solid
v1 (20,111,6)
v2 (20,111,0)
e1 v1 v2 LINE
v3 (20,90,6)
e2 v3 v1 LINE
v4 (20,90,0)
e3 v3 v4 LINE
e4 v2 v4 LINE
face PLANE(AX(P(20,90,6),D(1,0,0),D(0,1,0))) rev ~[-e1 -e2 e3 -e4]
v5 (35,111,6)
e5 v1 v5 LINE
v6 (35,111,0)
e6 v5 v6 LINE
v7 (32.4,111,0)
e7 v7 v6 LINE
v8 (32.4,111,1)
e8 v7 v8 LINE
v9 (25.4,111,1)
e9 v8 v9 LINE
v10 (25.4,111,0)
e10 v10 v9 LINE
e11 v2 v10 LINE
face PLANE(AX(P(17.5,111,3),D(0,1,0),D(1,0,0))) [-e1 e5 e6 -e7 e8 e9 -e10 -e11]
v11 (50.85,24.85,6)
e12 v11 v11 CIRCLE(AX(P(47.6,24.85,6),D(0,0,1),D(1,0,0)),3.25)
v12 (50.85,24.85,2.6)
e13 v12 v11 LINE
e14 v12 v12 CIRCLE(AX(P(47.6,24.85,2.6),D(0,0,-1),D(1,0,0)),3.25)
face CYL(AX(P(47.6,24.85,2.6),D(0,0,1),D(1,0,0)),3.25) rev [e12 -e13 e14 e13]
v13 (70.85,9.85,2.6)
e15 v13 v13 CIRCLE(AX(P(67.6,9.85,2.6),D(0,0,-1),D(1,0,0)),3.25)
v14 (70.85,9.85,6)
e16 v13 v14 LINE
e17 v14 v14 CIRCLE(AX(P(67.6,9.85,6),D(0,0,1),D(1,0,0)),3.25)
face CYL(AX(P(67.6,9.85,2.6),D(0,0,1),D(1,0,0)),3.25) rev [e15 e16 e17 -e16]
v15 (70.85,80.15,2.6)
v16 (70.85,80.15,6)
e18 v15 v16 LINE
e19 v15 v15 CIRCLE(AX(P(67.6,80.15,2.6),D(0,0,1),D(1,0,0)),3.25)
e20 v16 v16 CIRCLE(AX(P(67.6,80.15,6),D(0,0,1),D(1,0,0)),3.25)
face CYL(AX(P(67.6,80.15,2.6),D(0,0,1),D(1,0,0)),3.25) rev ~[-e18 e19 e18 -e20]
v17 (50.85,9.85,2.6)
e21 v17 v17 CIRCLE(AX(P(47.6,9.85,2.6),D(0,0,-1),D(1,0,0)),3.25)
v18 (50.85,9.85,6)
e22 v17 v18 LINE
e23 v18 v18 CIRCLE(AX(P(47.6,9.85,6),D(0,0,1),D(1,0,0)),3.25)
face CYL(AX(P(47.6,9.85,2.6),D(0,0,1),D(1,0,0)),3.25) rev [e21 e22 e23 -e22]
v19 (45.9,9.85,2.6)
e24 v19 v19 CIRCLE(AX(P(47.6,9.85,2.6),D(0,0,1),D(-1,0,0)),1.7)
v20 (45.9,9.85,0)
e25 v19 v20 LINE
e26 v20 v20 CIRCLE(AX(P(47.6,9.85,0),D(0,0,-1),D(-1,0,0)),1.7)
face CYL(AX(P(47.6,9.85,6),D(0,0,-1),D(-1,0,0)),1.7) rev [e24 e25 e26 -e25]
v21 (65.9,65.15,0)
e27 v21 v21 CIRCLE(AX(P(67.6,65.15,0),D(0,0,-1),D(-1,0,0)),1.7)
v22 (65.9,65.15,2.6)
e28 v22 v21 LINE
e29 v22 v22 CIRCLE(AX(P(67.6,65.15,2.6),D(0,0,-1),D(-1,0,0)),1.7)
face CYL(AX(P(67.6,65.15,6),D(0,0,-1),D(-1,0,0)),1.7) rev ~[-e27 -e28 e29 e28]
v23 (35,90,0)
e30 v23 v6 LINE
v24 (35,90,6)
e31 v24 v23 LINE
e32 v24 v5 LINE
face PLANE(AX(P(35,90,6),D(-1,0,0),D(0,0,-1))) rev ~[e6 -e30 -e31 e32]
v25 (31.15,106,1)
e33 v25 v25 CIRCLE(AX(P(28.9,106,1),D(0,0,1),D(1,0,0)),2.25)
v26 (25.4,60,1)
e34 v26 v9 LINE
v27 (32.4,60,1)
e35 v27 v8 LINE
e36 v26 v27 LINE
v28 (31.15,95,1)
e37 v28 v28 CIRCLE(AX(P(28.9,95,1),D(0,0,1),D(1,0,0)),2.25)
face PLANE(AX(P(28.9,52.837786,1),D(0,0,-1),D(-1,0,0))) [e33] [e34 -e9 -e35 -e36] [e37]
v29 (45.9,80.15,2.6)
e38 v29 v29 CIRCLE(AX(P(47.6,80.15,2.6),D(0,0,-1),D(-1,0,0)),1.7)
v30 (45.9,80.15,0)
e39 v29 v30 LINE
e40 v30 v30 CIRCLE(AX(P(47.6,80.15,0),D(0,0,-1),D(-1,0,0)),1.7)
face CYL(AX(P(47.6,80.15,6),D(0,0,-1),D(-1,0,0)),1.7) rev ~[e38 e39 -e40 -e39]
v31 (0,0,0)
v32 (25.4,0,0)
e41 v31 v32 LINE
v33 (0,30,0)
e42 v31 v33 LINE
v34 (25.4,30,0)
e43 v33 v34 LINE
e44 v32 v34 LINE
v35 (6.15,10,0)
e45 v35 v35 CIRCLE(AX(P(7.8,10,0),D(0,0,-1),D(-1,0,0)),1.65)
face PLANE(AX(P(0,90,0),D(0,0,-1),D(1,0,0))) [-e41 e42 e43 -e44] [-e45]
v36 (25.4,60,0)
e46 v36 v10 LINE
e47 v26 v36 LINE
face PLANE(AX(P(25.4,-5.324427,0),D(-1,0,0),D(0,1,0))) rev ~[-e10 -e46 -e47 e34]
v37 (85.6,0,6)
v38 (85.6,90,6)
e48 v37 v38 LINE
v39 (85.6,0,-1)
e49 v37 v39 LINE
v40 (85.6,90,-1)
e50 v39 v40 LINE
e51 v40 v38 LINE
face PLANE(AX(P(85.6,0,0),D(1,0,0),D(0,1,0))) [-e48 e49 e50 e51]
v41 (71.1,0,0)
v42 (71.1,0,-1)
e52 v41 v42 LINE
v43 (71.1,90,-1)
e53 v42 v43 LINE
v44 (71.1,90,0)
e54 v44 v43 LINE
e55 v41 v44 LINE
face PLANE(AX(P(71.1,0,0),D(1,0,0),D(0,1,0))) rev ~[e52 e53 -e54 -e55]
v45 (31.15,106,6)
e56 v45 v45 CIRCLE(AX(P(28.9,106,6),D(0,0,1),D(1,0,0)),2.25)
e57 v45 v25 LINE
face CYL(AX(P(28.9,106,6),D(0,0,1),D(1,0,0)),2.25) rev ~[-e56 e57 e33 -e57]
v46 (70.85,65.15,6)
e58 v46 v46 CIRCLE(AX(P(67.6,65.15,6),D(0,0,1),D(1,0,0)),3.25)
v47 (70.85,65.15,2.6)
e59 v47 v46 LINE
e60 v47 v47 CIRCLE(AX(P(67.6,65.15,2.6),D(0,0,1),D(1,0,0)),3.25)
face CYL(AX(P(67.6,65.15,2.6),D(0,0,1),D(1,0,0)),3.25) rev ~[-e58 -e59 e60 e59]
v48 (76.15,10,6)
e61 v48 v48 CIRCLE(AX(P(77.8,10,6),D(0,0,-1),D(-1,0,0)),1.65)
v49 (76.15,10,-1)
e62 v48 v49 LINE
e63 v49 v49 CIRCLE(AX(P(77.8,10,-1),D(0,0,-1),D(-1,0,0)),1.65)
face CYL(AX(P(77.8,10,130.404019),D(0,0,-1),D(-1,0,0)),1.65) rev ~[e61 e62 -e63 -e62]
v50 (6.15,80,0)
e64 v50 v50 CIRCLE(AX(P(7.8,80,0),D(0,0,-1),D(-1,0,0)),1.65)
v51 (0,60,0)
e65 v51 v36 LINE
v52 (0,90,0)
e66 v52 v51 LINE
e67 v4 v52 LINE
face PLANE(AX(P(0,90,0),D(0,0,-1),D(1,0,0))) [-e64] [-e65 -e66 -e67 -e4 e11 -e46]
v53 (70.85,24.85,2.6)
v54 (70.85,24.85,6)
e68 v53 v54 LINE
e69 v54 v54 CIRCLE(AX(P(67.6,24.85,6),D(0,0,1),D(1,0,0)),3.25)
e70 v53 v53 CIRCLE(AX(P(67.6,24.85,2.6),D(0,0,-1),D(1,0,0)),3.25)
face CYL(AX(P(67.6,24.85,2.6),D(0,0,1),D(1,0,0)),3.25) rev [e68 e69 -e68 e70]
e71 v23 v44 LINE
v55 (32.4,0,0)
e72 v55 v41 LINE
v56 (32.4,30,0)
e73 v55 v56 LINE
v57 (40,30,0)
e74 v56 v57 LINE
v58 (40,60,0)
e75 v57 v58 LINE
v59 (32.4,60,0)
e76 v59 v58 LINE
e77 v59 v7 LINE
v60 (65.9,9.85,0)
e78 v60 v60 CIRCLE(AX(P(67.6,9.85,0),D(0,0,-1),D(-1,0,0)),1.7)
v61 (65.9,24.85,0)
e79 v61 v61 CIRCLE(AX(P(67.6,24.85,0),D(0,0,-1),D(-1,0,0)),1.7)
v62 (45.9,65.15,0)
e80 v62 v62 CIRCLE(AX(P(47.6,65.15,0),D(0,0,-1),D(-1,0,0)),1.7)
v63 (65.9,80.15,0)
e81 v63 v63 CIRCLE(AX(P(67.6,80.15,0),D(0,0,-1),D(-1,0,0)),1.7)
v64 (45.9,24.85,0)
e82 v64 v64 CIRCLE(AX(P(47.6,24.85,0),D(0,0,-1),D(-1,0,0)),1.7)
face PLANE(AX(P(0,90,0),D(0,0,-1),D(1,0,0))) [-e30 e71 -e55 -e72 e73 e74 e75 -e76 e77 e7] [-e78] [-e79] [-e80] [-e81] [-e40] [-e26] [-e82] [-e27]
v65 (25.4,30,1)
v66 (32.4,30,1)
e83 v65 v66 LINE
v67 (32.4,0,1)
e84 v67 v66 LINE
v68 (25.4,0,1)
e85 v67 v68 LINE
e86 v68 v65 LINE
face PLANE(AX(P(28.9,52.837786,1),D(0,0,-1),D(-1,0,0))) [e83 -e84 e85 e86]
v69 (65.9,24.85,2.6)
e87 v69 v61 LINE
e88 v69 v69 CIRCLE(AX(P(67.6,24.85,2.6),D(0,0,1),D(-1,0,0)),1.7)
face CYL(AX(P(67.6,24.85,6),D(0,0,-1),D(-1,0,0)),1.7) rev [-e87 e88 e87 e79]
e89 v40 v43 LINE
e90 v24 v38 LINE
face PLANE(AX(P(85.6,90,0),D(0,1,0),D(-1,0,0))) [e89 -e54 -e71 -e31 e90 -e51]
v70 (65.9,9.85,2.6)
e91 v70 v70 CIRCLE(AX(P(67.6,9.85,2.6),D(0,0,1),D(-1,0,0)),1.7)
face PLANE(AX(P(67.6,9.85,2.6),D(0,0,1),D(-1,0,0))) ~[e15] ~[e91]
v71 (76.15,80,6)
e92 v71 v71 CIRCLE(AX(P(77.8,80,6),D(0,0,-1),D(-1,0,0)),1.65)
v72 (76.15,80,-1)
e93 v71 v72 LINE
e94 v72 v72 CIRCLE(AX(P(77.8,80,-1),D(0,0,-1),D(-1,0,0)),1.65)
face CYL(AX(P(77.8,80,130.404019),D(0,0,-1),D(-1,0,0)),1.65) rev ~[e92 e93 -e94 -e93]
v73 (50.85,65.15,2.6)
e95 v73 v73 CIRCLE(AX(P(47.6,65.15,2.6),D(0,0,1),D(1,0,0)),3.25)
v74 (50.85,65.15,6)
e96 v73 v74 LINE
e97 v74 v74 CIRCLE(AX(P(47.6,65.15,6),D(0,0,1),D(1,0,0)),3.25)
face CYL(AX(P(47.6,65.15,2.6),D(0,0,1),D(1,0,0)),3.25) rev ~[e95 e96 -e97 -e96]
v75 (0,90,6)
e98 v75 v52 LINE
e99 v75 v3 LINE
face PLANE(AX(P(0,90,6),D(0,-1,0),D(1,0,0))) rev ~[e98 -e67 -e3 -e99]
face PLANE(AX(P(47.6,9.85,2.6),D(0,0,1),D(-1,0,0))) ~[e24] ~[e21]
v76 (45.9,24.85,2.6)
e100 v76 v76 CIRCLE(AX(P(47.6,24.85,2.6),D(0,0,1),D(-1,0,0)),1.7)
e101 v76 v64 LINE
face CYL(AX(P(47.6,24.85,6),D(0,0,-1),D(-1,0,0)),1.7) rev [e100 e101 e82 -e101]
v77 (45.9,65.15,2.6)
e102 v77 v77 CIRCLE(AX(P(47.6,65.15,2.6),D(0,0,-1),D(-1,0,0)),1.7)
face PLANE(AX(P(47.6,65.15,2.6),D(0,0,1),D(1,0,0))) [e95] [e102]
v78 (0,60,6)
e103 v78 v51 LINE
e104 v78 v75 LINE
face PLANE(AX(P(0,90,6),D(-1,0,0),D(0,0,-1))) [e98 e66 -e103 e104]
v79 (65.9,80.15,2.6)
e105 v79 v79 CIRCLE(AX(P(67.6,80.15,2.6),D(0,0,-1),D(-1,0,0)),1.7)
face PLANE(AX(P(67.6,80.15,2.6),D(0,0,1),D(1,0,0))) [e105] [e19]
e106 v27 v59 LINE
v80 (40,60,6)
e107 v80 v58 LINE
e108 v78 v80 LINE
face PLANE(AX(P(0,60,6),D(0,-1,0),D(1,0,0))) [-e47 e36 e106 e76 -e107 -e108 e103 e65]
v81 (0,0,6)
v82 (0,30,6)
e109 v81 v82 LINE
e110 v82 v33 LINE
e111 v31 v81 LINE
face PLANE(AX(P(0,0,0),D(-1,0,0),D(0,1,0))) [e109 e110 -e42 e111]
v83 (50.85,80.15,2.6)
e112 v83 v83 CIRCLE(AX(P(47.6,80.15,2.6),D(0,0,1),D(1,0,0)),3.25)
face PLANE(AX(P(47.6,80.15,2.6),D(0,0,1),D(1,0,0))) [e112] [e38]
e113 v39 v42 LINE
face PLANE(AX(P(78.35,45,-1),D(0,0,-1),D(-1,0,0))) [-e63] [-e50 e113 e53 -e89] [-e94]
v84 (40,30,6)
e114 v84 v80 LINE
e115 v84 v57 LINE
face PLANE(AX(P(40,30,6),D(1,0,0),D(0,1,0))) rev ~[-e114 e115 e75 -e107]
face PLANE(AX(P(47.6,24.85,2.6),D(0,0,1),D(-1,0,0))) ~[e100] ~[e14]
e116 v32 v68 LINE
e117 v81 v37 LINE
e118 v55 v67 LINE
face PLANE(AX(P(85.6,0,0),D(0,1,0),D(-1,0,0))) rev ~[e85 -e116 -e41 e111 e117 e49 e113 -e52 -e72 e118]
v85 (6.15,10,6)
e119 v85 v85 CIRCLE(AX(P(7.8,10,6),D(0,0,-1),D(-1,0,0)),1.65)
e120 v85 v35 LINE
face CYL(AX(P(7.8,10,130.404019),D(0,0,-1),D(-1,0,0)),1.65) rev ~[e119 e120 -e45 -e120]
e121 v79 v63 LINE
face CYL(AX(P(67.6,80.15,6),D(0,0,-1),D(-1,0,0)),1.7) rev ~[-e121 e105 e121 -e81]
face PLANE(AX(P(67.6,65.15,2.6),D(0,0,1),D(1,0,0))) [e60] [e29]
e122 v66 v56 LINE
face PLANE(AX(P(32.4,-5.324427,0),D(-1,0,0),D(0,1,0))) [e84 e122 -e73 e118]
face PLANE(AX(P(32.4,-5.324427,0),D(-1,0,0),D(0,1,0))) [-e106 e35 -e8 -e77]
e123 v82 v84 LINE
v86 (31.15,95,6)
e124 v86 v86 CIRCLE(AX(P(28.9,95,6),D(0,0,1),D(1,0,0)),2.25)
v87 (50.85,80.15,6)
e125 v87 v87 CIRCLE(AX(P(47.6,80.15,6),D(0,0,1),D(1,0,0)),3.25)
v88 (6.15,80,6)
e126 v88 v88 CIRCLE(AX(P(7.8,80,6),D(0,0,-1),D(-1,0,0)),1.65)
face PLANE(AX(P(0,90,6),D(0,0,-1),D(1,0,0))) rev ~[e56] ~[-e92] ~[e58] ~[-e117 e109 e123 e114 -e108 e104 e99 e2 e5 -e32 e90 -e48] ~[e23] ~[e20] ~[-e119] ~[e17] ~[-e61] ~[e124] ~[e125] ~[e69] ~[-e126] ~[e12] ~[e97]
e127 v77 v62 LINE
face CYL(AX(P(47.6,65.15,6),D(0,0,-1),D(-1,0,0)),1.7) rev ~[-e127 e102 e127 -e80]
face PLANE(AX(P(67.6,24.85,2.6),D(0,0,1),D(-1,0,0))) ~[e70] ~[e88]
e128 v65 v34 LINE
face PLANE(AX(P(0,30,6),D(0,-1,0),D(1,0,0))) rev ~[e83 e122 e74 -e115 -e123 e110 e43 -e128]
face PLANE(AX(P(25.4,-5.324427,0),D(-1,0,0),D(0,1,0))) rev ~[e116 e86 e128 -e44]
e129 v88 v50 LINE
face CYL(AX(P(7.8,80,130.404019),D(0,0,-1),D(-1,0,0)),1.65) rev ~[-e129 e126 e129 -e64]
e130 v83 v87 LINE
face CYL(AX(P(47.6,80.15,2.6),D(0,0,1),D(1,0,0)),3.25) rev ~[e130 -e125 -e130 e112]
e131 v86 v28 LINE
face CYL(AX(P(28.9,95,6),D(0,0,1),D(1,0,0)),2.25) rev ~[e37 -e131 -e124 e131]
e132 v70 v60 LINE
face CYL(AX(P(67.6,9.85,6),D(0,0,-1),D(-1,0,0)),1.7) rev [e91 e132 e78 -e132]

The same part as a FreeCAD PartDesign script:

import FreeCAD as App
import Part
import Sketcher

V = App.Vector

doc = App.newDocument("Part")
body = doc.addObject("PartDesign::Body", "Body")

sketch1 = body.newObject("Sketcher::SketchObject", "Sketch")
sketch1.AttachmentSupport = (doc.getObject("XY_Plane"), [""])
sketch1.MapMode = "FlatFace"
sketch1.addGeometry([
    Part.LineSegment(V(0, 90, 0), V(0, 0, 0)),
    Part.LineSegment(V(0, 0, 0), V(86, 0, 0)),
    Part.LineSegment(V(86, 0, 0), V(86, 90, 0)),
    Part.LineSegment(V(86, 90, 0), V(0, 90, 0)),
], False)
sketch1.addConstraint([
    Sketcher.Constraint("Coincident", 0, 2, 1, 1),
    Sketcher.Constraint("Coincident", 1, 2, 2, 1),
    Sketcher.Constraint("Coincident", 2, 2, 3, 1),
    Sketcher.Constraint("Coincident", 3, 2, 0, 1),
    Sketcher.Constraint("Vertical", 0),
    Sketcher.Constraint("Horizontal", 1),
    Sketcher.Constraint("Vertical", 2),
    Sketcher.Constraint("Horizontal", 3),
    Sketcher.Constraint("Coincident", 0, 2, -1, 1),
    Sketcher.Constraint("DistanceY", 0, 2, 0, 1, 90.0),
    Sketcher.Constraint("DistanceX", 1, 1, 1, 2, 85.6),
])
pad1 = body.newObject("PartDesign::Pad", "Pad")
pad1.Profile = sketch1
pad1.Length = 6

sketch2 = body.newObject("Sketcher::SketchObject", "Sketch001")
sketch2.AttachmentSupport = (doc.getObject("XY_Plane"), [""])
sketch2.MapMode = "FlatFace"
sketch2.AttachmentOffset = App.Placement(V(0, 0, 6), App.Rotation())
sketch2.addGeometry([
    Part.LineSegment(V(0, 60, 0), V(0, 30, 0)),
    Part.LineSegment(V(0, 30, 0), V(40, 30, 0)),
    Part.LineSegment(V(40, 30, 0), V(40, 60, 0)),
    Part.LineSegment(V(40, 60, 0), V(0, 60, 0)),
], False)
sketch2.addConstraint([
    Sketcher.Constraint("Coincident", 0, 2, 1, 1),
    Sketcher.Constraint("Coincident", 1, 2, 2, 1),
    Sketcher.Constraint("Coincident", 2, 2, 3, 1),
    Sketcher.Constraint("Coincident", 3, 2, 0, 1),
    Sketcher.Constraint("Vertical", 0),
    Sketcher.Constraint("Horizontal", 1),
    Sketcher.Constraint("Vertical", 2),
    Sketcher.Constraint("Horizontal", 3),
    Sketcher.Constraint("PointOnObject", 0, 2, -2),
    Sketcher.Constraint("DistanceX", 1, 1, 1, 2, 40.0),
    Sketcher.Constraint("DistanceY", 0, 2, 0, 1, 30.0),
    Sketcher.Constraint("DistanceY", -1, 1, 0, 2, 30.0),
])
pocket1 = body.newObject("PartDesign::Pocket", "Pocket")
pocket1.Profile = sketch2
pocket1.Type = "ThroughAll"

sketch3 = body.newObject("Sketcher::SketchObject", "Sketch002")
sketch3.AttachmentSupport = (doc.getObject("XY_Plane"), [""])
sketch3.MapMode = "FlatFace"
sketch3.addGeometry([
    Part.LineSegment(V(86, 90, 0), V(86, 0, 0)),
    Part.LineSegment(V(86, 0, 0), V(71, 0, 0)),
    Part.LineSegment(V(71, 0, 0), V(71, 90, 0)),
    Part.LineSegment(V(71, 90, 0), V(86, 90, 0)),
], False)
sketch3.addConstraint([
    Sketcher.Constraint("Coincident", 0, 2, 1, 1),
    Sketcher.Constraint("Coincident", 1, 2, 2, 1),
    Sketcher.Constraint("Coincident", 2, 2, 3, 1),
    Sketcher.Constraint("Coincident", 3, 2, 0, 1),
    Sketcher.Constraint("Vertical", 0),
    Sketcher.Constraint("Horizontal", 1),
    Sketcher.Constraint("Vertical", 2),
    Sketcher.Constraint("Horizontal", 3),
    Sketcher.Constraint("PointOnObject", 0, 2, -1),
    Sketcher.Constraint("DistanceY", 0, 2, 0, 1, 90.0),
    Sketcher.Constraint("DistanceX", 1, 2, 1, 1, 14.5),
    Sketcher.Constraint("DistanceX", -1, 1, 0, 2, 85.6),
])
pad2 = body.newObject("PartDesign::Pad", "Pad001")
pad2.Profile = sketch3
pad2.Length = 1
pad2.Reversed = True

sketch4 = body.newObject("Sketcher::SketchObject", "Sketch003")
sketch4.AttachmentSupport = (doc.getObject("XY_Plane"), [""])
sketch4.MapMode = "FlatFace"
sketch4.AttachmentOffset = App.Placement(V(0, 0, 6), App.Rotation())
sketch4.addGeometry([
    Part.Circle(V(67.6, 65.2, 0), V(0, 0, 1), 1.7),
    Part.Circle(V(47.6, 65.2, 0), V(0, 0, 1), 1.7),
    Part.Circle(V(67.6, 80.2, 0), V(0, 0, 1), 1.7),
    Part.Circle(V(47.6, 80.2, 0), V(0, 0, 1), 1.7),
], False)
sketch4.addConstraint([
    Sketcher.Constraint("Equal", 0, 1),
    Sketcher.Constraint("Equal", 1, 2),
    Sketcher.Constraint("Equal", 2, 3),
    Sketcher.Constraint("Horizontal", 0, 3, 1, 3),
    Sketcher.Constraint("Horizontal", 2, 3, 3, 3),
    Sketcher.Constraint("Vertical", 0, 3, 2, 3),
    Sketcher.Constraint("Vertical", 1, 3, 3, 3),
    Sketcher.Constraint("Diameter", 0, 3.4),
    Sketcher.Constraint("DistanceX", 1, 3, 0, 3, 20.0),
    Sketcher.Constraint("DistanceY", 0, 3, 2, 3, 15.0),
    Sketcher.Constraint("DistanceX", -1, 1, 0, 3, 67.6),
    Sketcher.Constraint("DistanceY", -1, 1, 0, 3, 65.15),
])
doc.recompute()
hole = body.newObject("PartDesign::Hole", "Hole")
hole.Profile = sketch4
hole.ThreadType = "None"
hole.Diameter = 3.4
hole.DepthType = "ThroughAll"
hole.HoleCutType = "Counterbore"
hole.HoleCutDiameter = 6.5
hole.HoleCutDepth = 3.4
doc.recompute()

datumplane = body.newObject("PartDesign::Plane", "DatumPlane")
datumplane.AttachmentSupport = (doc.getObject("XZ_Plane"), [""])
datumplane.MapMode = "FlatFace"
datumplane.AttachmentOffset = App.Placement(V(0, 0, -45), App.Rotation())
mirrored = body.newObject("PartDesign::Mirrored", "Mirrored")
mirrored.Originals = [hole]
mirrored.MirrorPlane = (datumplane, [""])
body.Tip = mirrored

sketch5 = body.newObject("Sketcher::SketchObject", "Sketch004")
sketch5.AttachmentSupport = (doc.getObject("XY_Plane"), [""])
sketch5.MapMode = "FlatFace"
sketch5.AttachmentOffset = App.Placement(V(0, 0, 6), App.Rotation())
sketch5.addGeometry([
    Part.Circle(V(77.8, 10, 0), V(0, 0, 1), 1.6),
    Part.Circle(V(7.8, 10, 0), V(0, 0, 1), 1.6),
    Part.Circle(V(77.8, 80, 0), V(0, 0, 1), 1.6),
    Part.Circle(V(7.8, 80, 0), V(0, 0, 1), 1.6),
], False)
sketch5.addConstraint([
    Sketcher.Constraint("Equal", 0, 1),
    Sketcher.Constraint("Equal", 1, 2),
    Sketcher.Constraint("Equal", 2, 3),
    Sketcher.Constraint("Horizontal", 0, 3, 1, 3),
    Sketcher.Constraint("Horizontal", 2, 3, 3, 3),
    Sketcher.Constraint("Vertical", 0, 3, 2, 3),
    Sketcher.Constraint("Vertical", 1, 3, 3, 3),
    Sketcher.Constraint("Diameter", 0, 3.3),
    Sketcher.Constraint("DistanceY", -1, 1, 0, 3, 10.0),
    Sketcher.Constraint("DistanceY", -1, 1, 2, 3, 80.0),
    Sketcher.Constraint("DistanceX", 1, 3, 0, 3, 70.0),
    Sketcher.Constraint("DistanceX", -1, 1, 0, 3, 77.8),
])
doc.recompute()
hole2 = body.newObject("PartDesign::Hole", "Hole001")
hole2.Profile = sketch5
hole2.ThreadType = "None"
hole2.Diameter = 3.3
hole2.DepthType = "ThroughAll"

sketch6 = body.newObject("Sketcher::SketchObject", "Sketch005")
sketch6.AttachmentSupport = (doc.getObject("XZ_Plane"), [""])
sketch6.MapMode = "FlatFace"
sketch6.AttachmentOffset = App.Placement(V(0, 0, -90), App.Rotation())
sketch6.addGeometry([
    Part.LineSegment(V(0, 0, 0), V(0, 6, 0)),
    Part.LineSegment(V(0, 6, 0), V(35, 6, 0)),
    Part.LineSegment(V(35, 6, 0), V(35, 0, 0)),
    Part.LineSegment(V(35, 0, 0), V(0, 0, 0)),
], False)
sketch6.addConstraint([
    Sketcher.Constraint("Coincident", 0, 2, 1, 1),
    Sketcher.Constraint("Coincident", 1, 2, 2, 1),
    Sketcher.Constraint("Coincident", 2, 2, 3, 1),
    Sketcher.Constraint("Coincident", 3, 2, 0, 1),
    Sketcher.Constraint("Vertical", 0),
    Sketcher.Constraint("Horizontal", 1),
    Sketcher.Constraint("Vertical", 2),
    Sketcher.Constraint("Horizontal", 3),
    Sketcher.Constraint("Coincident", 3, 2, -1, 1),
    Sketcher.Constraint("DistanceX", 1, 1, 1, 2, 35.0),
    Sketcher.Constraint("DistanceY", 0, 1, 0, 2, 6.0),
])
pad3 = body.newObject("PartDesign::Pad", "Pad002")
pad3.Profile = sketch6
pad3.Length = 21
pad3.Reversed = True

sketch7 = body.newObject("Sketcher::SketchObject", "Sketch006")
sketch7.AttachmentSupport = (doc.getObject("XY_Plane"), [""])
sketch7.MapMode = "FlatFace"
sketch7.AttachmentOffset = App.Placement(V(0, 0, 6), App.Rotation())
sketch7.addGeometry([
    Part.LineSegment(V(0, 111, 0), V(0, 90, 0)),
    Part.LineSegment(V(0, 90, 0), V(20, 90, 0)),
    Part.LineSegment(V(20, 90, 0), V(20, 111, 0)),
    Part.LineSegment(V(20, 111, 0), V(0, 111, 0)),
], False)
sketch7.addConstraint([
    Sketcher.Constraint("Coincident", 0, 2, 1, 1),
    Sketcher.Constraint("Coincident", 1, 2, 2, 1),
    Sketcher.Constraint("Coincident", 2, 2, 3, 1),
    Sketcher.Constraint("Coincident", 3, 2, 0, 1),
    Sketcher.Constraint("Vertical", 0),
    Sketcher.Constraint("Horizontal", 1),
    Sketcher.Constraint("Vertical", 2),
    Sketcher.Constraint("Horizontal", 3),
    Sketcher.Constraint("PointOnObject", 0, 2, -2),
    Sketcher.Constraint("DistanceX", 1, 1, 1, 2, 20.0),
    Sketcher.Constraint("DistanceY", 0, 2, 0, 1, 21.0),
    Sketcher.Constraint("DistanceY", -1, 1, 0, 2, 90.0),
])
pocket2 = body.newObject("PartDesign::Pocket", "Pocket001")
pocket2.Profile = sketch7
pocket2.Length = 21

sketch8 = body.newObject("Sketcher::SketchObject", "Sketch007")
sketch8.AttachmentSupport = (doc.getObject("XY_Plane"), [""])
sketch8.MapMode = "FlatFace"
sketch8.addGeometry([
    Part.LineSegment(V(32, 111, 0), V(32, -5, 0)),
    Part.LineSegment(V(32, -5, 0), V(25, -5, 0)),
    Part.LineSegment(V(25, -5, 0), V(25, 111, 0)),
    Part.LineSegment(V(25, 111, 0), V(32, 111, 0)),
], False)
sketch8.addConstraint([
    Sketcher.Constraint("Coincident", 0, 2, 1, 1),
    Sketcher.Constraint("Coincident", 1, 2, 2, 1),
    Sketcher.Constraint("Coincident", 2, 2, 3, 1),
    Sketcher.Constraint("Coincident", 3, 2, 0, 1),
    Sketcher.Constraint("Vertical", 0),
    Sketcher.Constraint("Horizontal", 1),
    Sketcher.Constraint("Vertical", 2),
    Sketcher.Constraint("Horizontal", 3),
    Sketcher.Constraint("DistanceX", 1, 2, 1, 1, 7.0),
    Sketcher.Constraint("DistanceY", -1, 1, 2, 2, 111.0),
    Sketcher.Constraint("DistanceX", -1, 1, 0, 2, 32.4),
    Sketcher.Constraint("DistanceY", 0, 2, 0, 1, 116.324427),
])
pocket3 = body.newObject("PartDesign::Pocket", "Pocket002")
pocket3.Profile = sketch8
pocket3.Length = 1
pocket3.Reversed = True

sketch9 = body.newObject("Sketcher::SketchObject", "Sketch008")
sketch9.AttachmentSupport = (doc.getObject("XY_Plane"), [""])
sketch9.MapMode = "FlatFace"
sketch9.AttachmentOffset = App.Placement(V(0, 0, 6), App.Rotation())
sketch9.addGeometry([
    Part.Circle(V(28.9, 106, 0), V(0, 0, 1), 2.2),
    Part.Circle(V(28.9, 95, 0), V(0, 0, 1), 2.2),
], False)
sketch9.addConstraint([
    Sketcher.Constraint("Equal", 0, 1),
    Sketcher.Constraint("Vertical", 0, 3, 1, 3),
    Sketcher.Constraint("Diameter", 0, 4.5),
    Sketcher.Constraint("DistanceY", -1, 1, 0, 3, 106.0),
    Sketcher.Constraint("DistanceY", -1, 1, 1, 3, 95.0),
    Sketcher.Constraint("DistanceX", -1, 1, 0, 3, 28.9),
])
pocket4 = body.newObject("PartDesign::Pocket", "Pocket003")
pocket4.Profile = sketch9
pocket4.Type = "ThroughAll"

doc.recompute()
